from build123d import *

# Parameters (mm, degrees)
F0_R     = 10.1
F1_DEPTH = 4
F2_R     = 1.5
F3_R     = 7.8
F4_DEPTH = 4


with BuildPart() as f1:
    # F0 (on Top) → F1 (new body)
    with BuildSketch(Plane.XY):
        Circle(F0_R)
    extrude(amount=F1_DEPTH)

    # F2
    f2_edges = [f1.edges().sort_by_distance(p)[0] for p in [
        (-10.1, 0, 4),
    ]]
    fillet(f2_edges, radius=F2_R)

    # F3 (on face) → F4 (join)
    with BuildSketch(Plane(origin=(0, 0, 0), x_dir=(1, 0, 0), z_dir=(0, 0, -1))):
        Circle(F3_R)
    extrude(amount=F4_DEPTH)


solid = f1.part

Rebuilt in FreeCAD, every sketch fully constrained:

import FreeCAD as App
import Part
import Sketcher
from FreeCAD import Vector
Q = App.Units.Quantity


def edges_at(feature, points):
    """Names of the edges that pass closest to the given points."""
    edges = feature.Shape.Edges
    near = lambda p: min(range(len(edges)), key=lambda i: edges[i].distToShape(Part.Vertex(*p))[0])
    return sorted({f"Edge{near(p) + 1}" for p in points})

doc = App.newDocument("Part")
body = doc.addObject("PartDesign::Body", "Body")

# Sketch on XY plane
sketch1 = doc.addObject("Sketcher::SketchObject", "Sketch")
body.addObject(sketch1)
sketch1.AttachmentSupport = (doc.XY_Plane, [""])
sketch1.MapMode = "FlatFace"
sketch1.addGeometry(Part.Circle(Vector(0, 0, 0), Vector(0, 0, 1), 10), False)
sketch1.addConstraint(Sketcher.Constraint("Coincident", 0, 3, -1, 1))
sketch1.addConstraint(Sketcher.Constraint("Diameter", 0, Q("20.2 mm")))
pad1 = doc.addObject("PartDesign::Pad", "Pad")
body.addObject(pad1)
pad1.Profile = sketch1
pad1.Length = 4
doc.recompute()

fillet = doc.addObject("PartDesign::Fillet", "Fillet")
body.addObject(fillet)
fillet.Base = (pad1, edges_at(pad1, [(-10.1, 0, 4)]))
fillet.Radius = 1.5

# Sketch on XY plane
sketch2 = doc.addObject("Sketcher::SketchObject", "Sketch001")
body.addObject(sketch2)
sketch2.AttachmentSupport = (doc.XY_Plane, [""])
sketch2.MapMode = "FlatFace"
sketch2.addGeometry(Part.Circle(Vector(0, 0, 0), Vector(0, 0, 1), 8), False)
sketch2.addConstraint(Sketcher.Constraint("Coincident", 0, 3, -1, 1))
sketch2.addConstraint(Sketcher.Constraint("Diameter", 0, Q("15.6 mm")))
pad2 = doc.addObject("PartDesign::Pad", "Pad001")
body.addObject(pad2)
pad2.Profile = sketch2
pad2.Length = 4
pad2.Reversed = True

doc.recompute()
